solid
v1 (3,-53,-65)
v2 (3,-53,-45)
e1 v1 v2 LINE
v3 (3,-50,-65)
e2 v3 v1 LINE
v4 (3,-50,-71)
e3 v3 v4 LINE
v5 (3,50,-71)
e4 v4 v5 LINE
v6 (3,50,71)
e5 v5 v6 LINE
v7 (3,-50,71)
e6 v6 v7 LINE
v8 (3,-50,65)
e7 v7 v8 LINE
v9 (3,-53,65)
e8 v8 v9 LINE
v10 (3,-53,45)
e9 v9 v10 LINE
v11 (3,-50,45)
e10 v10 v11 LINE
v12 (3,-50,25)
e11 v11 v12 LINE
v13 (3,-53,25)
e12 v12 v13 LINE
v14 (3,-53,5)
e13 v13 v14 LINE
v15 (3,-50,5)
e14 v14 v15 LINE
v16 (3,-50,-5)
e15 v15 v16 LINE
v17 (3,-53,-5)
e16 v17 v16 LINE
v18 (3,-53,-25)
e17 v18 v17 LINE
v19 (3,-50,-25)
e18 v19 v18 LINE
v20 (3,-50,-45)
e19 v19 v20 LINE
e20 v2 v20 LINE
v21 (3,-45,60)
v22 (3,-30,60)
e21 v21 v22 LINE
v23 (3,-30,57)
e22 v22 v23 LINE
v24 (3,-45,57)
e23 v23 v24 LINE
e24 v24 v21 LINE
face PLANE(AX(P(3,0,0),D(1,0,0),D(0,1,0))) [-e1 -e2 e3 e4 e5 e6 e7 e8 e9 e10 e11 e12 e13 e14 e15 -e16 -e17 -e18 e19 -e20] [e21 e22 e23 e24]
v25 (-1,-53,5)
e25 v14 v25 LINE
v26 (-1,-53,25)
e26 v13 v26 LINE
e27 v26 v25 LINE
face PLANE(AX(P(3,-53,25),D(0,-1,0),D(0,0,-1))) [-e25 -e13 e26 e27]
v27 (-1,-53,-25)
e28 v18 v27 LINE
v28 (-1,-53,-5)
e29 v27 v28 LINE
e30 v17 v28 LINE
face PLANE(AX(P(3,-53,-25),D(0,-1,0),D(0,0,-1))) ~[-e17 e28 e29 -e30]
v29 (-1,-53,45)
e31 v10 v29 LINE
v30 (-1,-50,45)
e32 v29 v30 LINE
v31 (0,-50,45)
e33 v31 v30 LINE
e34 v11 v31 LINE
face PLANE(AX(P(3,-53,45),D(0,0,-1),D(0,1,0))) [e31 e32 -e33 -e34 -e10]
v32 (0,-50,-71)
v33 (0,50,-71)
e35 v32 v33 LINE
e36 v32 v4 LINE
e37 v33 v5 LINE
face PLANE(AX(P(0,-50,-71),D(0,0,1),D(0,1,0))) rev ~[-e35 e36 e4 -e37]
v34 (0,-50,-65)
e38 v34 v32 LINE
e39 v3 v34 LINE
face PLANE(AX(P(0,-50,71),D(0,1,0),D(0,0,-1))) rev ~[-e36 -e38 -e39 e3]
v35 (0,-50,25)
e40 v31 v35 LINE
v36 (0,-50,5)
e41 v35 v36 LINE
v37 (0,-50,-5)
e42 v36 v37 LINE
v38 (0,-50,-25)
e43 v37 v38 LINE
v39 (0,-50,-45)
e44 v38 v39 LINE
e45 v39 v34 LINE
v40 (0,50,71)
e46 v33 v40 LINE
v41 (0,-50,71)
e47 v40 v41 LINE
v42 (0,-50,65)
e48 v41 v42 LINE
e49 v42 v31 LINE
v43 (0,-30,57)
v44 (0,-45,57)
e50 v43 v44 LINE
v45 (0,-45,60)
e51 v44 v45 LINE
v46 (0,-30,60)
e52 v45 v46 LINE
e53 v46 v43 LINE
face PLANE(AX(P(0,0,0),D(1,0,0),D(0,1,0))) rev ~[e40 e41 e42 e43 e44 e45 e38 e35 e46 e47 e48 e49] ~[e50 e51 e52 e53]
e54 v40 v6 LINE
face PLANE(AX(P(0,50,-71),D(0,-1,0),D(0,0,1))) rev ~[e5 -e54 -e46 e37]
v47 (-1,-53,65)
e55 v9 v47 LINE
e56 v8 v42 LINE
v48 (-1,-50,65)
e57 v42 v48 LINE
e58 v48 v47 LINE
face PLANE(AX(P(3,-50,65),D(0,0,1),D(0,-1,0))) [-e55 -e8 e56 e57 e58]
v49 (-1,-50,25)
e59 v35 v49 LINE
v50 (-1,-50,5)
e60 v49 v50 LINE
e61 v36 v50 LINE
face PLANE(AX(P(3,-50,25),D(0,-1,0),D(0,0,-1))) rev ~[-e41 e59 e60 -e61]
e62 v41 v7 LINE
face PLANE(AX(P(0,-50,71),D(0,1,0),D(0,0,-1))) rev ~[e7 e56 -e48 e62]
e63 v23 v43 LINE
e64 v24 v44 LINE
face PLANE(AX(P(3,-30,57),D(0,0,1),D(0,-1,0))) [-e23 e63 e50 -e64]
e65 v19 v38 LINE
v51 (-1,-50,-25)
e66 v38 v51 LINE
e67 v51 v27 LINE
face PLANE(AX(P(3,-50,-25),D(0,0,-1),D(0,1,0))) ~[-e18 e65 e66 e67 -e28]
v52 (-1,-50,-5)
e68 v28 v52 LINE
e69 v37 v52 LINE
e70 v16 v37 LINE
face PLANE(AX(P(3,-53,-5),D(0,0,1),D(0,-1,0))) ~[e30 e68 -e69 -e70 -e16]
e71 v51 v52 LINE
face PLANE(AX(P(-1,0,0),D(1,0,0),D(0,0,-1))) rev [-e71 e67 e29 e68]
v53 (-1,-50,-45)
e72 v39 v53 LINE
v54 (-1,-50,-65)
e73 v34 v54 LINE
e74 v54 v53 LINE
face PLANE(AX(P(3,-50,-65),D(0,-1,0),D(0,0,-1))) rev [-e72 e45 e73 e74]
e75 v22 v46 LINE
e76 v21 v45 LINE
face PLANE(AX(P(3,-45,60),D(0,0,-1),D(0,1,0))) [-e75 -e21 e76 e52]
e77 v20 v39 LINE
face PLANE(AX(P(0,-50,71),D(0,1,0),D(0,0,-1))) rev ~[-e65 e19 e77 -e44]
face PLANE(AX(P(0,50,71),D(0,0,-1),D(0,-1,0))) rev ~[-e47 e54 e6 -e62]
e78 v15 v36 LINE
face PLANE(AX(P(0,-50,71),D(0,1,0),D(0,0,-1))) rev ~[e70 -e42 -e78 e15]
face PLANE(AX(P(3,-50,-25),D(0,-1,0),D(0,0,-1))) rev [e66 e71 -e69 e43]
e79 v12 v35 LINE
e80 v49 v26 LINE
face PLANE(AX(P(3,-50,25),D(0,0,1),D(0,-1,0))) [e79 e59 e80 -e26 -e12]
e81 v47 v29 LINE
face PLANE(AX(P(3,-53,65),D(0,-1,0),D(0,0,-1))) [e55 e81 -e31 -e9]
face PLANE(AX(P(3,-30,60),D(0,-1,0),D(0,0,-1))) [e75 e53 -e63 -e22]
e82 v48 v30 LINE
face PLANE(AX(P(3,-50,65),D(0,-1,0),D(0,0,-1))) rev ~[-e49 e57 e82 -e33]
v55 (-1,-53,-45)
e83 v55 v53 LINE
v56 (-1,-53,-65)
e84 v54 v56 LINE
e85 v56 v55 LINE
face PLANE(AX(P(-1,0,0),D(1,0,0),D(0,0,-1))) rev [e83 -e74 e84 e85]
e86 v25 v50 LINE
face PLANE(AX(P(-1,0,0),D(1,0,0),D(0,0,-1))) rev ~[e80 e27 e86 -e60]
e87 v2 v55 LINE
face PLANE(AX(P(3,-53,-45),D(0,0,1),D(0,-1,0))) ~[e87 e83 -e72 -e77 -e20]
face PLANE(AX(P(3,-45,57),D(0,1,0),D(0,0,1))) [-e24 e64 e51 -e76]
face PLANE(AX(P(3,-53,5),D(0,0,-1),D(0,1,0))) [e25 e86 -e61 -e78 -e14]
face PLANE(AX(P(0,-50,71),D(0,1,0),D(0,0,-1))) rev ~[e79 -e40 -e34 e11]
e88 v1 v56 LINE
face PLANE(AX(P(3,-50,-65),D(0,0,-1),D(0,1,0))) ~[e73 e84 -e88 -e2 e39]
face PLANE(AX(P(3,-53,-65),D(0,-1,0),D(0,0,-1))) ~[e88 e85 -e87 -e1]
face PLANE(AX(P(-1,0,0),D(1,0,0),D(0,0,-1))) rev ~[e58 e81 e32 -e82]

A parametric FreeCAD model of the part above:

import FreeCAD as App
import Part
import Sketcher

doc = App.newDocument("Part")
body = doc.addObject("PartDesign::Body", "Body")

sketch1 = body.newObject("Sketcher::SketchObject", "Sketch")
sketch1.AttachmentSupport = (doc.getObject("YZ_Plane"), [""])
sketch1.MapMode = "FlatFace"
sketch1.addGeometry(Part.LineSegment(App.Vector(-50, 71, 0), App.Vector(-50, -71, 0)), False)
sketch1.addGeometry(Part.LineSegment(App.Vector(-50, -71, 0), App.Vector(50, -71, 0)), False)
sketch1.addGeometry(Part.LineSegment(App.Vector(50, -71, 0), App.Vector(50, 71, 0)), False)
sketch1.addGeometry(Part.LineSegment(App.Vector(50, 71, 0), App.Vector(-50, 71, 0)), False)
sketch1.addConstraint(Sketcher.Constraint("Coincident", 0, 2, 1, 1))
sketch1.addConstraint(Sketcher.Constraint("Coincident", 1, 2, 2, 1))
sketch1.addConstraint(Sketcher.Constraint("Coincident", 2, 2, 3, 1))
sketch1.addConstraint(Sketcher.Constraint("Coincident", 3, 2, 0, 1))
sketch1.addConstraint(Sketcher.Constraint("Vertical", 0))
sketch1.addConstraint(Sketcher.Constraint("Horizontal", 1))
sketch1.addConstraint(Sketcher.Constraint("Vertical", 2))
sketch1.addConstraint(Sketcher.Constraint("Horizontal", 3))
sketch1.addConstraint(Sketcher.Constraint("Symmetric", 0, 2, 2, 2, -1, 1))
sketch1.addConstraint(Sketcher.Constraint("DistanceX", 1, 1, 1, 2, 100.0))
sketch1.addConstraint(Sketcher.Constraint("DistanceY", 0, 2, 0, 1, 142.0))
pad1 = body.newObject("PartDesign::Pad", "Pad")
pad1.Profile = sketch1
pad1.Length = 3

sketch2 = body.newObject("Sketcher::SketchObject", "Sketch001")
sketch2.AttachmentSupport = (doc.getObject("YZ_Plane"), [""])
sketch2.MapMode = "FlatFace"
sketch2.AttachmentOffset = App.Placement(App.Vector(0, 0, 3), App.Rotation())
sketch2.addGeometry(Part.LineSegment(App.Vector(-50, 5, 0), App.Vector(-50, 25, 0)), False)
sketch2.addGeometry(Part.LineSegment(App.Vector(-50, 25, 0), App.Vector(-53, 25, 0)), False)
sketch2.addGeometry(Part.LineSegment(App.Vector(-53, 25, 0), App.Vector(-53, 5, 0)), False)
sketch2.addGeometry(Part.LineSegment(App.Vector(-53, 5, 0), App.Vector(-50, 5, 0)), False)
sketch2.addGeometry(Part.LineSegment(App.Vector(-50, 45, 0), App.Vector(-50, 65, 0)), False)
sketch2.addGeometry(Part.LineSegment(App.Vector(-50, 65, 0), App.Vector(-53, 65, 0)), False)
sketch2.addGeometry(Part.LineSegment(App.Vector(-53, 65, 0), App.Vector(-53, 45, 0)), False)
sketch2.addGeometry(Part.LineSegment(App.Vector(-53, 45, 0), App.Vector(-50, 45, 0)), False)
sketch2.addConstraint(Sketcher.Constraint("Coincident", 0, 2, 1, 1))
sketch2.addConstraint(Sketcher.Constraint("Coincident", 1, 2, 2, 1))
sketch2.addConstraint(Sketcher.Constraint("Coincident", 2, 2, 3, 1))
sketch2.addConstraint(Sketcher.Constraint("Coincident", 3, 2, 0, 1))
sketch2.addConstraint(Sketcher.Constraint("Coincident", 4, 2, 5, 1))
sketch2.addConstraint(Sketcher.Constraint("Coincident", 5, 2, 6, 1))
sketch2.addConstraint(Sketcher.Constraint("Coincident", 6, 2, 7, 1))
sketch2.addConstraint(Sketcher.Constraint("Coincident", 7, 2, 4, 1))
sketch2.addConstraint(Sketcher.Constraint("Vertical", 0))
sketch2.addConstraint(Sketcher.Constraint("Horizontal", 1))
sketch2.addConstraint(Sketcher.Constraint("Vertical", 2))
sketch2.addConstraint(Sketcher.Constraint("Horizontal", 3))
sketch2.addConstraint(Sketcher.Constraint("Vertical", 4))
sketch2.addConstraint(Sketcher.Constraint("Horizontal", 5))
sketch2.addConstraint(Sketcher.Constraint("Vertical", 6))
sketch2.addConstraint(Sketcher.Constraint("Horizontal", 7))
sketch2.addConstraint(Sketcher.Constraint("Vertical", 3, 2, 4, 2))
sketch2.addConstraint(Sketcher.Constraint("Vertical", 2, 2, 5, 2))
sketch2.addConstraint(Sketcher.Constraint("Equal", 2, 4))
sketch2.addConstraint(Sketcher.Constraint("DistanceX", 1, 2, 1, 1, 3.0))
sketch2.addConstraint(Sketcher.Constraint("DistanceY", 0, 1, 0, 2, 20.0))
sketch2.addConstraint(Sketcher.Constraint("DistanceY", -1, 1, 2, 2, 5.0))
sketch2.addConstraint(Sketcher.Constraint("DistanceY", 1, 2, 6, 2, 20.0))
sketch2.addConstraint(Sketcher.Constraint("DistanceX", 0, 2, -1, 1, 50.0))
pad2 = body.newObject("PartDesign::Pad", "Pad001")
pad2.Profile = sketch2
pad2.Length = 4
pad2.Reversed = True
doc.recompute()

mirrored = body.newObject("PartDesign::Mirrored", "Mirrored")
mirrored.Originals = [pad2]
mirrored.MirrorPlane = (doc.getObject("XY_Plane"), [""])
body.Tip = mirrored

sketch3 = body.newObject("Sketcher::SketchObject", "Sketch002")
sketch3.AttachmentSupport = (doc.getObject("YZ_Plane"), [""])
sketch3.MapMode = "FlatFace"
sketch3.AttachmentOffset = App.Placement(App.Vector(0, 0, 3), App.Rotation())
sketch3.addGeometry(Part.LineSegment(App.Vector(-30, 57, 0), App.Vector(-30, 60, 0)), False)
sketch3.addGeometry(Part.LineSegment(App.Vector(-30, 60, 0), App.Vector(-45, 60, 0)), False)
sketch3.addGeometry(Part.LineSegment(App.Vector(-45, 60, 0), App.Vector(-45, 57, 0)), False)
sketch3.addGeometry(Part.LineSegment(App.Vector(-45, 57, 0), App.Vector(-30, 57, 0)), False)
sketch3.addConstraint(Sketcher.Constraint("Coincident", 0, 2, 1, 1))
sketch3.addConstraint(Sketcher.Constraint("Coincident", 1, 2, 2, 1))
sketch3.addConstraint(Sketcher.Constraint("Coincident", 2, 2, 3, 1))
sketch3.addConstraint(Sketcher.Constraint("Coincident", 3, 2, 0, 1))
sketch3.addConstraint(Sketcher.Constraint("Vertical", 0))
sketch3.addConstraint(Sketcher.Constraint("Horizontal", 1))
sketch3.addConstraint(Sketcher.Constraint("Vertical", 2))
sketch3.addConstraint(Sketcher.Constraint("Horizontal", 3))
sketch3.addConstraint(Sketcher.Constraint("DistanceX", 1, 2, 1, 1, 15.0))
sketch3.addConstraint(Sketcher.Constraint("DistanceY", 0, 1, 0, 2, 3.0))
sketch3.addConstraint(Sketcher.Constraint("DistanceY", -1, 1, 2, 2, 57.0))
sketch3.addConstraint(Sketcher.Constraint("DistanceX", 0, 2, -1, 1, 30.0))
pocket1 = body.newObject("PartDesign::Pocket", "Pocket")
pocket1.Profile = sketch3
pocket1.Length = 4

doc.recompute()
